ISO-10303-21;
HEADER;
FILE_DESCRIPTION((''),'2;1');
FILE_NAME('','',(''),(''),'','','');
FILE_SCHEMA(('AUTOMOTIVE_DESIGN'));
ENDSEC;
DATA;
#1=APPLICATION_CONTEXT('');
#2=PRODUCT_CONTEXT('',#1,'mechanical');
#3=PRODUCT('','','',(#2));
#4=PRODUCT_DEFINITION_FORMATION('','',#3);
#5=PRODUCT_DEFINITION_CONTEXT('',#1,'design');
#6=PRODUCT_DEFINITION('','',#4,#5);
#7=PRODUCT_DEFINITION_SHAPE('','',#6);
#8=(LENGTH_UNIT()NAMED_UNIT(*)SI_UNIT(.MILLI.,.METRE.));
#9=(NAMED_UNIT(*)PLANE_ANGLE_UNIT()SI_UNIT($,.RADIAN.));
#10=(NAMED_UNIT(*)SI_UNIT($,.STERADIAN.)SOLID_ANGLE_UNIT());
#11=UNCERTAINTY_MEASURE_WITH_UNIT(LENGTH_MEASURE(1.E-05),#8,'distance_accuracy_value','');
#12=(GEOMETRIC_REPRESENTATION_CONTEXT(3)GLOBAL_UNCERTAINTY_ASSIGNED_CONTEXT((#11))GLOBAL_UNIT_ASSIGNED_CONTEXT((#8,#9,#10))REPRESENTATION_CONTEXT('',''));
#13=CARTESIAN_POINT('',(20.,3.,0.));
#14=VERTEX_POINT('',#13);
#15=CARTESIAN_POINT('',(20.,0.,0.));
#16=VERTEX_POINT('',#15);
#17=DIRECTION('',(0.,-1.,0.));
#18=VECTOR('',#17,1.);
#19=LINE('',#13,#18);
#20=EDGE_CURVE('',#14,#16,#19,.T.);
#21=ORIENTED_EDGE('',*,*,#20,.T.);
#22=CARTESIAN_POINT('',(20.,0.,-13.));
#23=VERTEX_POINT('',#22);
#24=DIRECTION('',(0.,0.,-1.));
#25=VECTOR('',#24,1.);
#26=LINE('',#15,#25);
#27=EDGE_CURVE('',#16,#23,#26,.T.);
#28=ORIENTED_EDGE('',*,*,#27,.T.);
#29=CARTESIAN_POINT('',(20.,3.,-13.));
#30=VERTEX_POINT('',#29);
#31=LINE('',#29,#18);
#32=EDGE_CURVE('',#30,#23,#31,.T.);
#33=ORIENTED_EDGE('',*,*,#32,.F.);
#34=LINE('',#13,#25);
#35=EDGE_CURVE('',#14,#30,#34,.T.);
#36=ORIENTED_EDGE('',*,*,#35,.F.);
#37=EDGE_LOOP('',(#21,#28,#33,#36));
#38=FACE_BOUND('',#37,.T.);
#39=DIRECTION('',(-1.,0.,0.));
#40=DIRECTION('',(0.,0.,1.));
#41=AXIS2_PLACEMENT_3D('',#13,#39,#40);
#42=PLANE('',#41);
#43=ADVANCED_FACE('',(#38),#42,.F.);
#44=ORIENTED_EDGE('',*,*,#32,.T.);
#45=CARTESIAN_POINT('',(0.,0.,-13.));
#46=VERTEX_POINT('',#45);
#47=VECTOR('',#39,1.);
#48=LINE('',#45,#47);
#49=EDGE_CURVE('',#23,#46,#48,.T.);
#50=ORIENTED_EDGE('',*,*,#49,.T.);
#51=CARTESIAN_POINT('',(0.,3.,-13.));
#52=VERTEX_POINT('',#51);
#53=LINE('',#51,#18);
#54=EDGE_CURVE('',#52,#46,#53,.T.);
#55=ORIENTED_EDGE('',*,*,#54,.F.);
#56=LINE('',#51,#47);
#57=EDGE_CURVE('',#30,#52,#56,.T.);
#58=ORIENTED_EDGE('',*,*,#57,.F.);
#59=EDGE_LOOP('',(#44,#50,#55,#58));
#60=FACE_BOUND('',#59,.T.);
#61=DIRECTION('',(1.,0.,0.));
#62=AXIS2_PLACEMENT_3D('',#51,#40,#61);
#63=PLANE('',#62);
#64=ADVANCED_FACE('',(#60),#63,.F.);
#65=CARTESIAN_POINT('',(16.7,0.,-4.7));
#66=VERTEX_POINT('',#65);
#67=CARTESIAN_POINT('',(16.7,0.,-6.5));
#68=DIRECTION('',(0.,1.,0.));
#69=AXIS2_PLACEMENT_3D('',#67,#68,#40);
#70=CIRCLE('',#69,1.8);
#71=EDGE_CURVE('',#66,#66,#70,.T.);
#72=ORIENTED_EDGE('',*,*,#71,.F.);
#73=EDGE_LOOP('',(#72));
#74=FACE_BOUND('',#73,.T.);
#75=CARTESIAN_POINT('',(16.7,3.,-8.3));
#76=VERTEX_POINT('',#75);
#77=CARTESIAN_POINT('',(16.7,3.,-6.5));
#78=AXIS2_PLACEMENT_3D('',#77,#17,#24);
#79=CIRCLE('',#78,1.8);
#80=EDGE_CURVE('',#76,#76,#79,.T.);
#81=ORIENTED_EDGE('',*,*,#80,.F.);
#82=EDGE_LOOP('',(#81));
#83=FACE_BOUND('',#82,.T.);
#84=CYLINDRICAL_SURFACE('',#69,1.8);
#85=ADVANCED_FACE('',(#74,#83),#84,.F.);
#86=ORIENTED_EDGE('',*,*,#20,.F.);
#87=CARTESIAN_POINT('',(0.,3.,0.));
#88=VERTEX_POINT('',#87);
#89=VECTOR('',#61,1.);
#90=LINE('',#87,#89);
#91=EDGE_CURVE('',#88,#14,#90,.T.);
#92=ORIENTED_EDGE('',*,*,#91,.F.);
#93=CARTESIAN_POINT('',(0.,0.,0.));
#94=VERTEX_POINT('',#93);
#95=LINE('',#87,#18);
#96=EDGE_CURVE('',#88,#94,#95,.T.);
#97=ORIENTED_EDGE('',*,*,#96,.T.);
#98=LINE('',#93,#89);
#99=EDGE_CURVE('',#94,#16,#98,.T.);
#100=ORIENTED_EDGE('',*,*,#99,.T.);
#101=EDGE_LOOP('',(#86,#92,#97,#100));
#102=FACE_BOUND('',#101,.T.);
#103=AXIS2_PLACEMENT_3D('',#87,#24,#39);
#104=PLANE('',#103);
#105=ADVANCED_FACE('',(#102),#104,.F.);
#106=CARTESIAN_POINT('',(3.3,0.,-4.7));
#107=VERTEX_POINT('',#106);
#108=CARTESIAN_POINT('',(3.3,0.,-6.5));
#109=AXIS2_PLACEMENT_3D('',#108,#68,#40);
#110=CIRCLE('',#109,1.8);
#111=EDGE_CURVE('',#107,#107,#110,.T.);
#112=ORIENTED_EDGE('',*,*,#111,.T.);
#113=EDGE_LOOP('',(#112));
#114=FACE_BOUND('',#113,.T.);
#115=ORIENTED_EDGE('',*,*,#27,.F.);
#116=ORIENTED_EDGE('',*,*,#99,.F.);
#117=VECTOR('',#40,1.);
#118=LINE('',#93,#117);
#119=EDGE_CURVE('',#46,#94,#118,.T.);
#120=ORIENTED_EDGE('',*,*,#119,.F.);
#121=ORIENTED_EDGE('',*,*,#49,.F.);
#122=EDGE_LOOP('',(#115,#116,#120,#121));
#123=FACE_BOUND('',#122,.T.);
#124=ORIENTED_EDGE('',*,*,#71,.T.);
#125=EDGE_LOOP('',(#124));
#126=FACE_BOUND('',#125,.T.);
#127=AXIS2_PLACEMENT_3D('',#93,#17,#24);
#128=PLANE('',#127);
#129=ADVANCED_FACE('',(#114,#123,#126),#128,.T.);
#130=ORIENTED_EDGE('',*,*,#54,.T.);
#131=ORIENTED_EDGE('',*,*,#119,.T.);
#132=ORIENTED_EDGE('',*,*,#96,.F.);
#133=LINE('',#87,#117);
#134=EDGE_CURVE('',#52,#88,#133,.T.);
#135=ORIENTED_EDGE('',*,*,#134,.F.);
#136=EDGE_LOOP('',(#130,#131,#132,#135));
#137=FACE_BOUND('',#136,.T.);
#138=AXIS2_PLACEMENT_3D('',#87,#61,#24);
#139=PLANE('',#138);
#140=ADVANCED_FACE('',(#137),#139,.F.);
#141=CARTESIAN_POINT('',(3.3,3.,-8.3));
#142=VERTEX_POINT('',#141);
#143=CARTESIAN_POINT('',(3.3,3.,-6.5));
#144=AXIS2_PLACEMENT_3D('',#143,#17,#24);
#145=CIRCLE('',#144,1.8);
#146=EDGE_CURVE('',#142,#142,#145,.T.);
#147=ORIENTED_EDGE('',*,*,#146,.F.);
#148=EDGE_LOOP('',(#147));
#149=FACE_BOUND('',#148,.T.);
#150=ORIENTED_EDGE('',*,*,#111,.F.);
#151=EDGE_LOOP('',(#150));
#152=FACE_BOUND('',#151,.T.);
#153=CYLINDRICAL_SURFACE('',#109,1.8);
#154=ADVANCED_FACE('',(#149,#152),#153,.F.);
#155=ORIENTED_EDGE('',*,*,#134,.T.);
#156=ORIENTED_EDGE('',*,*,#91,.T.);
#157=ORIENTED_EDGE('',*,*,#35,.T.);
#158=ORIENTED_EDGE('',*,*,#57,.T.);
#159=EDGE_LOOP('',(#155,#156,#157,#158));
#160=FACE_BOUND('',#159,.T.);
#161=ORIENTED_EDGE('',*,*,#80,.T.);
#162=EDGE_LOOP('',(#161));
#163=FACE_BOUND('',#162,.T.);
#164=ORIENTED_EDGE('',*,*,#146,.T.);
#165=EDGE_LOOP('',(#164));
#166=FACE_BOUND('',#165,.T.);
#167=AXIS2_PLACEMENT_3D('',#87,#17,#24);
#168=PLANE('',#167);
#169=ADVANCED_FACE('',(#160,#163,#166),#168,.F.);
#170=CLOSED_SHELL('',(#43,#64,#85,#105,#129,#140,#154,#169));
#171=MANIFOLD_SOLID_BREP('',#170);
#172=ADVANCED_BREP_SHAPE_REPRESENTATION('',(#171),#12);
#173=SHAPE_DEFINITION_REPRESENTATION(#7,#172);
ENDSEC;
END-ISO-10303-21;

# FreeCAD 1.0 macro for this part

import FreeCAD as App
import Part
import Sketcher
from FreeCAD import Vector
Q = App.Units.Quantity

doc = App.newDocument("Part")
body = doc.addObject("PartDesign::Body", "Body")

# Sketch on XZ plane
sketch1 = body.newObject("Sketcher::SketchObject", "Sketch")
sketch1.AttachmentSupport = (doc.getObject("XZ_Plane"), [""])
sketch1.MapMode = "FlatFace"
sketch1.addGeometry([
    Part.LineSegment(Vector(0, -13, 0), Vector(0, 0, 0)),
    Part.LineSegment(Vector(0, 0, 0), Vector(20, 0, 0)),
    Part.LineSegment(Vector(20, 0, 0), Vector(20, -13, 0)),
    Part.LineSegment(Vector(20, -13, 0), Vector(0, -13, 0)),
], False)
sketch1.addConstraint([
    Sketcher.Constraint("Coincident", 0, 2, 1, 1),
    Sketcher.Constraint("Coincident", 1, 2, 2, 1),
    Sketcher.Constraint("Coincident", 2, 2, 3, 1),
    Sketcher.Constraint("Coincident", 3, 2, 0, 1),
    Sketcher.Constraint("Vertical", 0),
    Sketcher.Constraint("Horizontal", 1),
    Sketcher.Constraint("Vertical", 2),
    Sketcher.Constraint("Horizontal", 3),
    Sketcher.Constraint("Coincident", 0, 2, -1, 1),
    Sketcher.Constraint("DistanceX", 1, 1, 1, 2, Q("20 mm")),
    Sketcher.Constraint("DistanceY", 0, 1, 0, 2, Q("13 mm")),
])
pad1 = body.newObject("PartDesign::Pad", "Pad")
pad1.Profile = sketch1
pad1.Length = 3
pad1.Reversed = True

# Sketch on XZ plane
sketch2 = body.newObject("Sketcher::SketchObject", "Sketch001")
sketch2.AttachmentSupport = (doc.getObject("XZ_Plane"), [""])
sketch2.MapMode = "FlatFace"
sketch2.AttachmentOffset = App.Placement(Vector(0, 0, -3), App.Rotation())
sketch2.addGeometry([
    Part.Circle(Vector(3.3, -6.5, 0), Vector(0, 0, 1), 1.8),
    Part.Circle(Vector(16.7, -6.5, 0), Vector(0, 0, 1), 1.8),
], False)
sketch2.addConstraint([
    Sketcher.Constraint("Equal", 0, 1),
    Sketcher.Constraint("Horizontal", 0, 3, 1, 3),
    Sketcher.Constraint("Diameter", 0, Q("3.6 mm")),
    Sketcher.Constraint("DistanceX", -1, 1, 0, 3, Q("3.3 mm")),
    Sketcher.Constraint("DistanceY", 0, 3, -1, 1, Q("6.5 mm")),
    Sketcher.Constraint("DistanceX", -1, 1, 1, 3, Q("16.7 mm")),
])
pocket1 = body.newObject("PartDesign::Pocket", "Pocket")
pocket1.Profile = sketch2
pocket1.Type = "ThroughAll"
pocket1.Midplane = True

doc.recompute()
